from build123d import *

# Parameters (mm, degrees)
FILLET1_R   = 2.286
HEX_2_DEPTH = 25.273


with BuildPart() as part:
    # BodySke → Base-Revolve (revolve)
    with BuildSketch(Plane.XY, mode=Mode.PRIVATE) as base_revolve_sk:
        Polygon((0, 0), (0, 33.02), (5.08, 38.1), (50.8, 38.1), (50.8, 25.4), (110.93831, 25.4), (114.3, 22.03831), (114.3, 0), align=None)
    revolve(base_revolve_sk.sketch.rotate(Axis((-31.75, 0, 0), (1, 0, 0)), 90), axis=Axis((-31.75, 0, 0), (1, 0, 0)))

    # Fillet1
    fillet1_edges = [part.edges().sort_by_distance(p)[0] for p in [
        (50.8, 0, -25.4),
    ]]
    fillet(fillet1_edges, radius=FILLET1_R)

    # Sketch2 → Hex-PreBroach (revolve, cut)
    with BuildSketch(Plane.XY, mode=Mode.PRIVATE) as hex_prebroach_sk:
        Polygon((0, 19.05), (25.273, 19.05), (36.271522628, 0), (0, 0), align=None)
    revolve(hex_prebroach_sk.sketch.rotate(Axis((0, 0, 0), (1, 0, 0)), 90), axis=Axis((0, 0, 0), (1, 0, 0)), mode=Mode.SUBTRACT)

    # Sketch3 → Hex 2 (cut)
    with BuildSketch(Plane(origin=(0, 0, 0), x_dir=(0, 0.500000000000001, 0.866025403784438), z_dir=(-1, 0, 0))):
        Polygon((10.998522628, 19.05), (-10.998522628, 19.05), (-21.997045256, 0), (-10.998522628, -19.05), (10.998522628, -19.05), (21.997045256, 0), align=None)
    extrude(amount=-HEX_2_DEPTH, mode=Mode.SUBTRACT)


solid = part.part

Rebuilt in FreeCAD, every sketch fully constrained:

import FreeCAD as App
import Part
import Sketcher
Q = App.Units.Quantity


def edges_at(feature, points):
    """Names of the edges that pass closest to the given points."""
    edges = feature.Shape.Edges
    near = lambda p: min(range(len(edges)), key=lambda i: edges[i].distToShape(Part.Vertex(*p))[0])
    return sorted({f"Edge{near(p) + 1}" for p in points})

doc = App.newDocument("Part")
body = doc.addObject("PartDesign::Body", "Body")

# Sketch on XY plane
sketch1 = body.newObject("Sketcher::SketchObject", "Sketch")
sketch1.AttachmentSupport = (doc.getObject("XY_Plane"), [""])
sketch1.MapMode = "FlatFace"
sketch1.addGeometry(Part.LineSegment(App.Vector(0, 33, 0), App.Vector(0, 0, 0)), False)
sketch1.addGeometry(Part.LineSegment(App.Vector(0, 0, 0), App.Vector(114.3, 0, 0)), False)
sketch1.addGeometry(Part.LineSegment(App.Vector(114.3, 0, 0), App.Vector(114.3, 22, 0)), False)
sketch1.addGeometry(Part.LineSegment(App.Vector(114.3, 22, 0), App.Vector(110.9, 25.4, 0)), False)
sketch1.addGeometry(Part.LineSegment(App.Vector(110.9, 25.4, 0), App.Vector(50.8, 25.4, 0)), False)
sketch1.addGeometry(Part.LineSegment(App.Vector(50.8, 25.4, 0), App.Vector(50.8, 38.1, 0)), False)
sketch1.addGeometry(Part.LineSegment(App.Vector(50.8, 38.1, 0), App.Vector(5.1, 38.1, 0)), False)
sketch1.addGeometry(Part.LineSegment(App.Vector(5.1, 38.1, 0), App.Vector(0, 33, 0)), False)
sketch1.addConstraint(Sketcher.Constraint("Coincident", 0, 2, 1, 1))
sketch1.addConstraint(Sketcher.Constraint("Coincident", 1, 2, 2, 1))
sketch1.addConstraint(Sketcher.Constraint("Coincident", 2, 2, 3, 1))
sketch1.addConstraint(Sketcher.Constraint("Coincident", 3, 2, 4, 1))
sketch1.addConstraint(Sketcher.Constraint("Coincident", 4, 2, 5, 1))
sketch1.addConstraint(Sketcher.Constraint("Coincident", 5, 2, 6, 1))
sketch1.addConstraint(Sketcher.Constraint("Coincident", 6, 2, 7, 1))
sketch1.addConstraint(Sketcher.Constraint("Coincident", 7, 2, 0, 1))
sketch1.addConstraint(Sketcher.Constraint("Vertical", 0))
sketch1.addConstraint(Sketcher.Constraint("Horizontal", 1))
sketch1.addConstraint(Sketcher.Constraint("Vertical", 2))
sketch1.addConstraint(Sketcher.Constraint("Horizontal", 4))
sketch1.addConstraint(Sketcher.Constraint("Vertical", 5))
sketch1.addConstraint(Sketcher.Constraint("Horizontal", 6))
sketch1.addConstraint(Sketcher.Constraint("Coincident", 0, 2, -1, 1))
sketch1.addConstraint(Sketcher.Constraint("Perpendicular", 3, 7))
sketch1.addConstraint(Sketcher.Constraint("DistanceX", 1, 1, 1, 2, Q("4.5 in")))
sketch1.addConstraint(Sketcher.Constraint("DistanceX", 6, 2, 6, 1, Q("1.8 in")))
sketch1.addConstraint(Sketcher.Constraint("DistanceY", 0, 2, 0, 1, Q("1.3 in")))
sketch1.addConstraint(Sketcher.Constraint("DistanceY", 5, 1, 5, 2, Q("0.5 in")))
sketch1.addConstraint(Sketcher.Constraint("DistanceY", -1, 1, 3, 2, Q("1 in")))
sketch1.addConstraint(Sketcher.Constraint("DistanceX", -1, 1, 4, 2, Q("2 in")))
sketch1.addConstraint(Sketcher.Constraint("DistanceX", 4, 2, 4, 1, 60.13831))
revolution = body.newObject("PartDesign::Revolution", "Revolution")
revolution.Profile = sketch1
revolution.ReferenceAxis = (sketch1, ["H_Axis"])
revolution.Angle = 360
doc.recompute()

fillet = body.newObject("PartDesign::Fillet", "Fillet")
fillet.Base = (revolution, edges_at(revolution, [(50.8, 0, -25.4)]))
fillet.Radius = Q("0.09 in")

# Sketch on XY plane
sketch2 = body.newObject("Sketcher::SketchObject", "Sketch001")
sketch2.AttachmentSupport = (doc.getObject("XY_Plane"), [""])
sketch2.MapMode = "FlatFace"
sketch2.addGeometry(Part.LineSegment(App.Vector(25, 19, 0), App.Vector(0, 19, 0)), False)
sketch2.addGeometry(Part.LineSegment(App.Vector(0, 19, 0), App.Vector(0, 0, 0)), False)
sketch2.addGeometry(Part.LineSegment(App.Vector(0, 0, 0), App.Vector(36, 0, 0)), False)
sketch2.addGeometry(Part.LineSegment(App.Vector(36, 0, 0), App.Vector(25, 19, 0)), False)
sketch2.addConstraint(Sketcher.Constraint("Coincident", 0, 2, 1, 1))
sketch2.addConstraint(Sketcher.Constraint("Coincident", 1, 2, 2, 1))
sketch2.addConstraint(Sketcher.Constraint("Coincident", 2, 2, 3, 1))
sketch2.addConstraint(Sketcher.Constraint("Coincident", 3, 2, 0, 1))
sketch2.addConstraint(Sketcher.Constraint("Horizontal", 0))
sketch2.addConstraint(Sketcher.Constraint("Vertical", 1))
sketch2.addConstraint(Sketcher.Constraint("Horizontal", 2))
sketch2.addConstraint(Sketcher.Constraint("Coincident", 1, 2, -1, 1))
sketch2.addConstraint(Sketcher.Constraint("Angle", 3, Q("120 deg")))
sketch2.addConstraint(Sketcher.Constraint("DistanceY", 1, 2, 1, 1, Q("0.75 in")))
sketch2.addConstraint(Sketcher.Constraint("DistanceX", 0, 2, 0, 1, Q("0.995 in")))
groove = body.newObject("PartDesign::Groove", "Groove")
groove.Profile = sketch2
groove.ReferenceAxis = (sketch2, ["H_Axis"])
groove.Angle = 360

# Sketch on YZ plane
sketch3 = body.newObject("Sketcher::SketchObject", "Sketch002")
sketch3.AttachmentSupport = (doc.getObject("YZ_Plane"), [""])
sketch3.MapMode = "FlatFace"
sketch3.addGeometry(Part.LineSegment(App.Vector(22, 0, 0), App.Vector(11, -19, 0)), False)
sketch3.addGeometry(Part.LineSegment(App.Vector(11, -19, 0), App.Vector(-11, -19, 0)), False)
sketch3.addGeometry(Part.LineSegment(App.Vector(-11, -19, 0), App.Vector(-22, 0, 0)), False)
sketch3.addGeometry(Part.LineSegment(App.Vector(-22, 0, 0), App.Vector(-11, 19, 0)), False)
sketch3.addGeometry(Part.LineSegment(App.Vector(-11, 19, 0), App.Vector(11, 19, 0)), False)
sketch3.addGeometry(Part.LineSegment(App.Vector(11, 19, 0), App.Vector(22, 0, 0)), False)
sketch3.addConstraint(Sketcher.Constraint("Coincident", 0, 2, 1, 1))
sketch3.addConstraint(Sketcher.Constraint("Coincident", 1, 2, 2, 1))
sketch3.addConstraint(Sketcher.Constraint("Coincident", 2, 2, 3, 1))
sketch3.addConstraint(Sketcher.Constraint("Coincident", 3, 2, 4, 1))
sketch3.addConstraint(Sketcher.Constraint("Coincident", 4, 2, 5, 1))
sketch3.addConstraint(Sketcher.Constraint("Coincident", 5, 2, 0, 1))
sketch3.addConstraint(Sketcher.Constraint("Horizontal", 1))
sketch3.addConstraint(Sketcher.Constraint("Horizontal", 4))
sketch3.addConstraint(Sketcher.Constraint("Symmetric", 0, 2, 3, 2, -1, 1))
sketch3.addConstraint(Sketcher.Constraint("Symmetric", 2, 2, 5, 2, -1, 1))
sketch3.addConstraint(Sketcher.Constraint("PointOnObject", 2, 2, -1))
sketch3.addConstraint(Sketcher.Constraint("Parallel", 2, 5))
sketch3.addConstraint(Sketcher.Constraint("Vertical", 1, 2, 3, 2))
sketch3.addConstraint(Sketcher.Constraint("Angle", 0, Q("-120 deg")))
sketch3.addConstraint(Sketcher.Constraint("DistanceY", 1, 2, 3, 2, Q("1.5 in")))
sketch3.addConstraint(Sketcher.Constraint("DistanceX", 1, 2, 1, 1, 21.997045))
pocket1 = body.newObject("PartDesign::Pocket", "Pocket")
pocket1.Profile = sketch3
pocket1.Length = Q("0.995 in")
pocket1.Reversed = True

doc.recompute()
